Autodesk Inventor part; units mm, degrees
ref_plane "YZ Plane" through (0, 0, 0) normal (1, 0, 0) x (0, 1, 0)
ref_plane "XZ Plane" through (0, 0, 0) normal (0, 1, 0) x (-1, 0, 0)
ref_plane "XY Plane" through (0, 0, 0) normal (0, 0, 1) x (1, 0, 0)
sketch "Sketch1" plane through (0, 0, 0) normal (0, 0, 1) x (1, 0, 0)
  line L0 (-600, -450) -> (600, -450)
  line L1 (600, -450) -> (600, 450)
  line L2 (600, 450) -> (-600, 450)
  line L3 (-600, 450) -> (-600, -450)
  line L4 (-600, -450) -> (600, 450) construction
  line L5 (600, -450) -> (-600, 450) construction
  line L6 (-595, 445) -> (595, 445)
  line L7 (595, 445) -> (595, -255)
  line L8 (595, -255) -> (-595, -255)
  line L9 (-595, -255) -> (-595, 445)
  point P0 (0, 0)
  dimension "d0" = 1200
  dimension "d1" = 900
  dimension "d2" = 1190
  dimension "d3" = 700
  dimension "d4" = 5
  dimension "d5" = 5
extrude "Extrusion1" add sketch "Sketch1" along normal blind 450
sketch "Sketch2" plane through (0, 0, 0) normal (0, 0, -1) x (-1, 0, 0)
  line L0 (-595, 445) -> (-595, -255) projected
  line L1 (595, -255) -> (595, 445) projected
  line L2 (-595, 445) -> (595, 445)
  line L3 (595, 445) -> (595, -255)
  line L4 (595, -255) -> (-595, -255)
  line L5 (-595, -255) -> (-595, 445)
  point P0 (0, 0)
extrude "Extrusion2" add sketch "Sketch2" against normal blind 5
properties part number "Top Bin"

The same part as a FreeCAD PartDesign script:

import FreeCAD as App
import Part
import Sketcher
from FreeCAD import Vector
Q = App.Units.Quantity


def add_polygon(sketch, points):
    """Adds a closed chain of lines whose ends are joined by coincident constraints."""
    first, n = sketch.GeometryCount, len(points)
    for a, b in zip(points, points[1:] + points[:1]):
        sketch.addGeometry(Part.LineSegment(App.Vector(*a, 0), App.Vector(*b, 0)), False)
    for i in range(n):
        sketch.addConstraint(Sketcher.Constraint("Coincident", first + i, 2, first + (i + 1) % n, 1))

doc = App.newDocument("Part")
body = doc.addObject("PartDesign::Body", "Body")

# Sketch on XY plane
sketch1 = body.newObject("Sketcher::SketchObject", "Sketch")
sketch1.AttachmentSupport = (doc.getObject("XY_Plane"), [""])
sketch1.MapMode = "FlatFace"
add_polygon(sketch1, [(-600, 450), (-600, -450), (600, -450), (600, 450)])  # lines 0-3
add_polygon(sketch1, [(-595, -255), (-595, 445), (595, 445), (595, -255)])  # lines 4-7
sketch1.addConstraint([
    Sketcher.Constraint("Vertical", 0),
    Sketcher.Constraint("Horizontal", 1),
    Sketcher.Constraint("Vertical", 2),
    Sketcher.Constraint("Horizontal", 3),
    Sketcher.Constraint("Vertical", 4),
    Sketcher.Constraint("Horizontal", 5),
    Sketcher.Constraint("Vertical", 6),
    Sketcher.Constraint("Horizontal", 7),
    Sketcher.Constraint("Symmetric", 0, 2, 2, 2, -1, 1),
    Sketcher.Constraint("DistanceX", 1, 1, 1, 2, Q("1200 mm")),
    Sketcher.Constraint("DistanceX", 5, 1, 5, 2, Q("1190 mm")),
    Sketcher.Constraint("DistanceY", 0, 2, 0, 1, Q("900 mm")),
    Sketcher.Constraint("DistanceY", 4, 1, 4, 2, Q("700 mm")),
    Sketcher.Constraint("DistanceX", 3, 2, 4, 2, Q("5 mm")),
    Sketcher.Constraint("DistanceY", 4, 2, 3, 2, Q("5 mm")),
])
pad1 = body.newObject("PartDesign::Pad", "Pad")
pad1.Profile = sketch1
pad1.Length = 450

# Sketch on XY plane
sketch2 = body.newObject("Sketcher::SketchObject", "Sketch001")
sketch2.AttachmentSupport = (doc.getObject("XY_Plane"), [""])
sketch2.MapMode = "FlatFace"
add_polygon(sketch2, [(-595, 445), (595, 445), (595, -255), (-595, -255)])  # lines 0-3
sketch2.addConstraint([
    Sketcher.Constraint("Horizontal", 0),
    Sketcher.Constraint("Vertical", 1),
    Sketcher.Constraint("Horizontal", 2),
    Sketcher.Constraint("Vertical", 3),
    Sketcher.Constraint("DistanceX", 0, 1, 0, 2, Q("1190 mm")),
    Sketcher.Constraint("DistanceY", 1, 2, 1, 1, Q("700 mm")),
    Sketcher.Constraint("DistanceX", -1, 1, 0, 2, Q("595 mm")),
    Sketcher.Constraint("DistanceY", -1, 1, 0, 2, Q("445 mm")),
])
pad2 = body.newObject("PartDesign::Pad", "Pad001")
pad2.Profile = sketch2
pad2.Length = 5

doc.recompute()
